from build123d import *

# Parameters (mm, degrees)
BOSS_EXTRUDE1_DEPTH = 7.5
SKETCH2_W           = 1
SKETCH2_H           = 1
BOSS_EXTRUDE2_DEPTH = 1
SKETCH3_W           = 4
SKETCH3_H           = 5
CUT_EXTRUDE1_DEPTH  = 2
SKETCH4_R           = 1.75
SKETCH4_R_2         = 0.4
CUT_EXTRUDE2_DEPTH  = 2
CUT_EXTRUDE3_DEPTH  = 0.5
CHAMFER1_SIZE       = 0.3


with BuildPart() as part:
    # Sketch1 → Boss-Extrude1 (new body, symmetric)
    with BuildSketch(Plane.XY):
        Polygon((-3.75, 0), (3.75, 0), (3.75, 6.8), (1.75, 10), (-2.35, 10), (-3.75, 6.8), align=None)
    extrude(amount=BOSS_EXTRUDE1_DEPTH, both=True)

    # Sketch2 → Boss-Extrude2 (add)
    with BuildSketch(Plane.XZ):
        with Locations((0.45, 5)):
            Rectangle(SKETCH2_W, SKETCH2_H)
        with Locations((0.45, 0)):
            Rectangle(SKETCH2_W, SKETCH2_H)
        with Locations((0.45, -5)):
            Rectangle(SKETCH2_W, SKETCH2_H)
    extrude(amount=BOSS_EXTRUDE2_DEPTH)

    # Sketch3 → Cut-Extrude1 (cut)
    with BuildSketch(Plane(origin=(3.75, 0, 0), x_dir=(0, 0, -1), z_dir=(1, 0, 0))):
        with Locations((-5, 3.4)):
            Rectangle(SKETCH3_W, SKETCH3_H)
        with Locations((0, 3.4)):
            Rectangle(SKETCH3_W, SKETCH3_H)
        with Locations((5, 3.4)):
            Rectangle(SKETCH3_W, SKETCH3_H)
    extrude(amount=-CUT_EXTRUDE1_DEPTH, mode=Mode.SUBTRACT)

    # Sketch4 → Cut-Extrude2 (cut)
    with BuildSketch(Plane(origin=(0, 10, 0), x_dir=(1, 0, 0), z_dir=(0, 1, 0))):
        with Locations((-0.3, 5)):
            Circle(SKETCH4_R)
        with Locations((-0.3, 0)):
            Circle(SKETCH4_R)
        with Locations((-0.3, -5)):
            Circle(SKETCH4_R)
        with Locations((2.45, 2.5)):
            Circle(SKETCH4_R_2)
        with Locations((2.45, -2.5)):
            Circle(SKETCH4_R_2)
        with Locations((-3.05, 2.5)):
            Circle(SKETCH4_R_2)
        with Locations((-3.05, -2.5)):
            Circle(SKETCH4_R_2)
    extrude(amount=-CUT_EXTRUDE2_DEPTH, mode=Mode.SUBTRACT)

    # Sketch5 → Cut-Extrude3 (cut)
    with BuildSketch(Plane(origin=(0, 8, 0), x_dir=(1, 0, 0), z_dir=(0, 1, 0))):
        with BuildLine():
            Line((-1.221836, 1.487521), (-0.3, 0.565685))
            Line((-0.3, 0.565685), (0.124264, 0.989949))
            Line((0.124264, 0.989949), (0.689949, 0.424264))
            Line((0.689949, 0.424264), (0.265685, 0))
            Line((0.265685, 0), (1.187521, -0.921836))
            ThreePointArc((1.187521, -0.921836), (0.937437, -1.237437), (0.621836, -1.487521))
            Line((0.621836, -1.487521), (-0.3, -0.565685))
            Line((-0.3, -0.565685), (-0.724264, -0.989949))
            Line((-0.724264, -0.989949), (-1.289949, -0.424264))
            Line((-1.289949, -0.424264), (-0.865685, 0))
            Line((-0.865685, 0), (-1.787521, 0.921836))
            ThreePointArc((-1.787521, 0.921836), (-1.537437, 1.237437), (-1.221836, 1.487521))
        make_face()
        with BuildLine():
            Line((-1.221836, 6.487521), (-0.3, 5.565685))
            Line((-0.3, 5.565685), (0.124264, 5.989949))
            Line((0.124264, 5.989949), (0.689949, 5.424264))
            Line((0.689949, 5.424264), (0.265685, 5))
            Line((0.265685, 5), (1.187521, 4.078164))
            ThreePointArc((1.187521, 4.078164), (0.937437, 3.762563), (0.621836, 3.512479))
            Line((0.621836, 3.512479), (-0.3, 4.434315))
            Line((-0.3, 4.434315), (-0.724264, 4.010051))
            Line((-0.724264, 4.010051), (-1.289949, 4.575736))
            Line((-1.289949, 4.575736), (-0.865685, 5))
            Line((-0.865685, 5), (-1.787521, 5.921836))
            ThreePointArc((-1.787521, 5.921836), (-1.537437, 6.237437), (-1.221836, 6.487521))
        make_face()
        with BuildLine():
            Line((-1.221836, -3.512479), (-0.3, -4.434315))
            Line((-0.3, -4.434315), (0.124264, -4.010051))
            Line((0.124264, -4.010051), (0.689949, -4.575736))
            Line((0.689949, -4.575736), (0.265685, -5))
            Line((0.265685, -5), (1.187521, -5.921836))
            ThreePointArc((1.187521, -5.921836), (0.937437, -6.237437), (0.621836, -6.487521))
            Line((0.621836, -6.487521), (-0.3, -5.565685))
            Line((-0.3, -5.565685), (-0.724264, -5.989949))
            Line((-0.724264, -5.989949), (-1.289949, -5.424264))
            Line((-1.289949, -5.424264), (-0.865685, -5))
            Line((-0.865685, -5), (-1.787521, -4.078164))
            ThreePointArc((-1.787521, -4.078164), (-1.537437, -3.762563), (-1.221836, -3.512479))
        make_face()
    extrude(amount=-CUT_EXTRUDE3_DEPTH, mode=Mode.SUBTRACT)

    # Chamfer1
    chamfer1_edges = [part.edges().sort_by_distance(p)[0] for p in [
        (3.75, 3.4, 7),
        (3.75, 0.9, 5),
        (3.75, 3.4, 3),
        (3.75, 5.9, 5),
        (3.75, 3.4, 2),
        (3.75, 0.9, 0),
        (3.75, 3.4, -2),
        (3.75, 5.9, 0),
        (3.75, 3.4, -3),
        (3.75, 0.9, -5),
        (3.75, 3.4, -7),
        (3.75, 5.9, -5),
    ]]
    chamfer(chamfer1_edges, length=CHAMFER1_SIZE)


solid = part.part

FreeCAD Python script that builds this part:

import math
import FreeCAD as App
import Part
import Sketcher
from FreeCAD import Vector
Q = App.Units.Quantity


def edges_at(feature, points):
    """Names of the edges that pass closest to the given points."""
    edges = feature.Shape.Edges
    near = lambda p: min(range(len(edges)), key=lambda i: edges[i].distToShape(Part.Vertex(*p))[0])
    return sorted({f"Edge{near(p) + 1}" for p in points})

doc = App.newDocument("Part")
body = doc.addObject("PartDesign::Body", "Body")

# Sketch on XY plane
sketch1 = body.newObject("Sketcher::SketchObject", "Sketch")
sketch1.AttachmentSupport = (doc.getObject("XY_Plane"), [""])
sketch1.MapMode = "FlatFace"
sketch1.addGeometry(Part.LineSegment(Vector(-3.75, 0, 0), Vector(3.75, 0, 0)), False)
sketch1.addGeometry(Part.LineSegment(Vector(3.75, 0, 0), Vector(3.75, 6.8, 0)), False)
sketch1.addGeometry(Part.LineSegment(Vector(3.75, 6.8, 0), Vector(1.75, 10, 0)), False)
sketch1.addGeometry(Part.LineSegment(Vector(1.75, 10, 0), Vector(-2.35, 10, 0)), False)
sketch1.addGeometry(Part.LineSegment(Vector(-2.35, 10, 0), Vector(-3.75, 6.8, 0)), False)
sketch1.addGeometry(Part.LineSegment(Vector(-3.75, 6.8, 0), Vector(-3.75, 0, 0)), False)
sketch1.addConstraint(Sketcher.Constraint("Coincident", 0, 2, 1, 1))
sketch1.addConstraint(Sketcher.Constraint("Coincident", 1, 2, 2, 1))
sketch1.addConstraint(Sketcher.Constraint("Coincident", 2, 2, 3, 1))
sketch1.addConstraint(Sketcher.Constraint("Coincident", 3, 2, 4, 1))
sketch1.addConstraint(Sketcher.Constraint("Coincident", 4, 2, 5, 1))
sketch1.addConstraint(Sketcher.Constraint("Coincident", 5, 2, 0, 1))
sketch1.addConstraint(Sketcher.Constraint("Horizontal", 0))
sketch1.addConstraint(Sketcher.Constraint("Vertical", 1))
sketch1.addConstraint(Sketcher.Constraint("Horizontal", 3))
sketch1.addConstraint(Sketcher.Constraint("Vertical", 5))
sketch1.addConstraint(Sketcher.Constraint("Symmetric", 0, 2, 5, 2, -1, 1))
sketch1.addConstraint(Sketcher.Constraint("Horizontal", 1, 2, 4, 2))
sketch1.addConstraint(Sketcher.Constraint("DistanceX", 0, 1, 0, 2, Q("7.5 mm")))
sketch1.addConstraint(Sketcher.Constraint("DistanceX", 3, 2, 3, 1, Q("4.1 mm")))
sketch1.addConstraint(Sketcher.Constraint("DistanceY", 1, 1, 1, 2, Q("6.8 mm")))
sketch1.addConstraint(Sketcher.Constraint("DistanceY", -1, 1, 2, 2, Q("10 mm")))
sketch1.addConstraint(Sketcher.Constraint("DistanceX", 2, 2, 1, 2, Q("2 mm")))
pad1 = body.newObject("PartDesign::Pad", "Pad")
pad1.Profile = sketch1
pad1.Length = 15
pad1.Midplane = True

# Sketch on XZ plane
sketch2 = body.newObject("Sketcher::SketchObject", "Sketch001")
sketch2.AttachmentSupport = (doc.getObject("XZ_Plane"), [""])
sketch2.MapMode = "FlatFace"
sketch2.addGeometry(Part.LineSegment(Vector(-0.05, 5.5, 0), Vector(-0.05, 4.5, 0)), False)
sketch2.addGeometry(Part.LineSegment(Vector(-0.05, 4.5, 0), Vector(0.95, 4.5, 0)), False)
sketch2.addGeometry(Part.LineSegment(Vector(0.95, 4.5, 0), Vector(0.95, 5.5, 0)), False)
sketch2.addGeometry(Part.LineSegment(Vector(0.95, 5.5, 0), Vector(-0.05, 5.5, 0)), False)
sketch2.addGeometry(Part.LineSegment(Vector(-0.05, 0.5, 0), Vector(-0.05, -0.5, 0)), False)
sketch2.addGeometry(Part.LineSegment(Vector(-0.05, -0.5, 0), Vector(0.95, -0.5, 0)), False)
sketch2.addGeometry(Part.LineSegment(Vector(0.95, -0.5, 0), Vector(0.95, 0.5, 0)), False)
sketch2.addGeometry(Part.LineSegment(Vector(0.95, 0.5, 0), Vector(-0.05, 0.5, 0)), False)
sketch2.addGeometry(Part.LineSegment(Vector(-0.05, -4.5, 0), Vector(-0.05, -5.5, 0)), False)
sketch2.addGeometry(Part.LineSegment(Vector(-0.05, -5.5, 0), Vector(0.95, -5.5, 0)), False)
sketch2.addGeometry(Part.LineSegment(Vector(0.95, -5.5, 0), Vector(0.95, -4.5, 0)), False)
sketch2.addGeometry(Part.LineSegment(Vector(0.95, -4.5, 0), Vector(-0.05, -4.5, 0)), False)
sketch2.addConstraint(Sketcher.Constraint("Coincident", 0, 2, 1, 1))
sketch2.addConstraint(Sketcher.Constraint("Coincident", 1, 2, 2, 1))
sketch2.addConstraint(Sketcher.Constraint("Coincident", 2, 2, 3, 1))
sketch2.addConstraint(Sketcher.Constraint("Coincident", 3, 2, 0, 1))
sketch2.addConstraint(Sketcher.Constraint("Coincident", 4, 2, 5, 1))
sketch2.addConstraint(Sketcher.Constraint("Coincident", 5, 2, 6, 1))
sketch2.addConstraint(Sketcher.Constraint("Coincident", 6, 2, 7, 1))
sketch2.addConstraint(Sketcher.Constraint("Coincident", 7, 2, 4, 1))
sketch2.addConstraint(Sketcher.Constraint("Coincident", 8, 2, 9, 1))
sketch2.addConstraint(Sketcher.Constraint("Coincident", 9, 2, 10, 1))
sketch2.addConstraint(Sketcher.Constraint("Coincident", 10, 2, 11, 1))
sketch2.addConstraint(Sketcher.Constraint("Coincident", 11, 2, 8, 1))
sketch2.addConstraint(Sketcher.Constraint("Vertical", 0))
sketch2.addConstraint(Sketcher.Constraint("Horizontal", 1))
sketch2.addConstraint(Sketcher.Constraint("Vertical", 2))
sketch2.addConstraint(Sketcher.Constraint("Horizontal", 3))
sketch2.addConstraint(Sketcher.Constraint("Vertical", 4))
sketch2.addConstraint(Sketcher.Constraint("Horizontal", 5))
sketch2.addConstraint(Sketcher.Constraint("Vertical", 6))
sketch2.addConstraint(Sketcher.Constraint("Horizontal", 7))
sketch2.addConstraint(Sketcher.Constraint("Vertical", 8))
sketch2.addConstraint(Sketcher.Constraint("Horizontal", 9))
sketch2.addConstraint(Sketcher.Constraint("Vertical", 10))
sketch2.addConstraint(Sketcher.Constraint("Horizontal", 11))
sketch2.addConstraint(Sketcher.Constraint("Symmetric", 3, 2, 8, 2, -1))
sketch2.addConstraint(Sketcher.Constraint("Symmetric", 1, 2, 10, 2, -1))
sketch2.addConstraint(Sketcher.Constraint("Vertical", 3, 2, 4, 2))
sketch2.addConstraint(Sketcher.Constraint("Vertical", 2, 2, 5, 2))
sketch2.addConstraint(Sketcher.Constraint("Equal", 11, 0))
sketch2.addConstraint(Sketcher.Constraint("Equal", 2, 4))
sketch2.addConstraint(Sketcher.Constraint("DistanceX", 1, 1, 1, 2, Q("1 mm")))
sketch2.addConstraint(Sketcher.Constraint("DistanceY", 4, 2, 0, 2, Q("5 mm")))
sketch2.addConstraint(Sketcher.Constraint("DistanceY", 8, 2, 4, 2, Q("5 mm")))
sketch2.addConstraint(Sketcher.Constraint("DistanceX", 0, 2, -1, 1, Q("0.05 mm")))
pad2 = body.newObject("PartDesign::Pad", "Pad001")
pad2.Profile = sketch2
pad2.Length = 1

# Sketch on YZ plane
sketch3 = body.newObject("Sketcher::SketchObject", "Sketch002")
sketch3.AttachmentSupport = (doc.getObject("YZ_Plane"), [""])
sketch3.MapMode = "FlatFace"
sketch3.AttachmentOffset = App.Placement(Vector(0, 0, 3.75), App.Rotation())
sketch3.addGeometry(Part.LineSegment(Vector(5.9, 7, 0), Vector(0.9, 7, 0)), False)
sketch3.addGeometry(Part.LineSegment(Vector(0.9, 7, 0), Vector(0.9, 3, 0)), False)
sketch3.addGeometry(Part.LineSegment(Vector(0.9, 3, 0), Vector(5.9, 3, 0)), False)
sketch3.addGeometry(Part.LineSegment(Vector(5.9, 3, 0), Vector(5.9, 7, 0)), False)
sketch3.addGeometry(Part.LineSegment(Vector(5.9, 2, 0), Vector(0.9, 2, 0)), False)
sketch3.addGeometry(Part.LineSegment(Vector(0.9, 2, 0), Vector(0.9, -2, 0)), False)
sketch3.addGeometry(Part.LineSegment(Vector(0.9, -2, 0), Vector(5.9, -2, 0)), False)
sketch3.addGeometry(Part.LineSegment(Vector(5.9, -2, 0), Vector(5.9, 2, 0)), False)
sketch3.addGeometry(Part.LineSegment(Vector(5.9, -3, 0), Vector(0.9, -3, 0)), False)
sketch3.addGeometry(Part.LineSegment(Vector(0.9, -3, 0), Vector(0.9, -7, 0)), False)
sketch3.addGeometry(Part.LineSegment(Vector(0.9, -7, 0), Vector(5.9, -7, 0)), False)
sketch3.addGeometry(Part.LineSegment(Vector(5.9, -7, 0), Vector(5.9, -3, 0)), False)
sketch3.addConstraint(Sketcher.Constraint("Coincident", 0, 2, 1, 1))
sketch3.addConstraint(Sketcher.Constraint("Coincident", 1, 2, 2, 1))
sketch3.addConstraint(Sketcher.Constraint("Coincident", 2, 2, 3, 1))
sketch3.addConstraint(Sketcher.Constraint("Coincident", 3, 2, 0, 1))
sketch3.addConstraint(Sketcher.Constraint("Coincident", 4, 2, 5, 1))
sketch3.addConstraint(Sketcher.Constraint("Coincident", 5, 2, 6, 1))
sketch3.addConstraint(Sketcher.Constraint("Coincident", 6, 2, 7, 1))
sketch3.addConstraint(Sketcher.Constraint("Coincident", 7, 2, 4, 1))
sketch3.addConstraint(Sketcher.Constraint("Coincident", 8, 2, 9, 1))
sketch3.addConstraint(Sketcher.Constraint("Coincident", 9, 2, 10, 1))
sketch3.addConstraint(Sketcher.Constraint("Coincident", 10, 2, 11, 1))
sketch3.addConstraint(Sketcher.Constraint("Coincident", 11, 2, 8, 1))
sketch3.addConstraint(Sketcher.Constraint("Horizontal", 0))
sketch3.addConstraint(Sketcher.Constraint("Vertical", 1))
sketch3.addConstraint(Sketcher.Constraint("Horizontal", 2))
sketch3.addConstraint(Sketcher.Constraint("Vertical", 3))
sketch3.addConstraint(Sketcher.Constraint("Horizontal", 4))
sketch3.addConstraint(Sketcher.Constraint("Vertical", 5))
sketch3.addConstraint(Sketcher.Constraint("Horizontal", 6))
sketch3.addConstraint(Sketcher.Constraint("Vertical", 7))
sketch3.addConstraint(Sketcher.Constraint("Horizontal", 8))
sketch3.addConstraint(Sketcher.Constraint("Vertical", 9))
sketch3.addConstraint(Sketcher.Constraint("Horizontal", 10))
sketch3.addConstraint(Sketcher.Constraint("Vertical", 11))
sketch3.addConstraint(Sketcher.Constraint("Symmetric", 1, 2, 8, 2, -1))
sketch3.addConstraint(Sketcher.Constraint("Symmetric", 3, 2, 10, 2, -1))
sketch3.addConstraint(Sketcher.Constraint("Vertical", 1, 2, 4, 2))
sketch3.addConstraint(Sketcher.Constraint("Vertical", 3, 2, 6, 2))
sketch3.addConstraint(Sketcher.Constraint("Equal", 3, 5))
sketch3.addConstraint(Sketcher.Constraint("DistanceX", 0, 2, 0, 1, Q("5 mm")))
sketch3.addConstraint(Sketcher.Constraint("DistanceY", 1, 2, 1, 1, Q("4 mm")))
sketch3.addConstraint(Sketcher.Constraint("DistanceY", -1, 1, 0, 2, Q("7 mm")))
sketch3.addConstraint(Sketcher.Constraint("DistanceY", -1, 1, 4, 2, Q("2 mm")))
sketch3.addConstraint(Sketcher.Constraint("DistanceX", -1, 1, 0, 2, Q("0.9 mm")))
pocket1 = body.newObject("PartDesign::Pocket", "Pocket")
pocket1.Profile = sketch3
pocket1.Length = 2

# Sketch on XZ plane
sketch4 = body.newObject("Sketcher::SketchObject", "Sketch003")
sketch4.AttachmentSupport = (doc.getObject("XZ_Plane"), [""])
sketch4.MapMode = "FlatFace"
sketch4.AttachmentOffset = App.Placement(Vector(0, 0, -10), App.Rotation())
sketch4.addGeometry(Part.Circle(Vector(-0.3, -5, 0), Vector(0, 0, 1), 1.75), False)
sketch4.addGeometry(Part.Circle(Vector(-0.3, 0, 0), Vector(0, 0, 1), 1.75), False)
sketch4.addGeometry(Part.Circle(Vector(-0.3, 5, 0), Vector(0, 0, 1), 1.75), False)
sketch4.addGeometry(Part.Circle(Vector(2.45, -2.5, 0), Vector(0, 0, 1), 0.4), False)
sketch4.addGeometry(Part.Circle(Vector(2.45, 2.5, 0), Vector(0, 0, 1), 0.4), False)
sketch4.addGeometry(Part.Circle(Vector(-3.05, -2.5, 0), Vector(0, 0, 1), 0.4), False)
sketch4.addGeometry(Part.Circle(Vector(-3.05, 2.5, 0), Vector(0, 0, 1), 0.4), False)
sketch4.addConstraint(Sketcher.Constraint("Equal", 0, 1))
sketch4.addConstraint(Sketcher.Constraint("Equal", 1, 2))
sketch4.addConstraint(Sketcher.Constraint("Equal", 3, 4))
sketch4.addConstraint(Sketcher.Constraint("Equal", 4, 5))
sketch4.addConstraint(Sketcher.Constraint("Equal", 5, 6))
sketch4.addConstraint(Sketcher.Constraint("Symmetric", 0, 3, 2, 3, -1))
sketch4.addConstraint(Sketcher.Constraint("Symmetric", 3, 3, 4, 3, -1))
sketch4.addConstraint(Sketcher.Constraint("Symmetric", 5, 3, 6, 3, -1))
sketch4.addConstraint(Sketcher.Constraint("PointOnObject", 1, 3, -1))
sketch4.addConstraint(Sketcher.Constraint("Horizontal", 3, 3, 5, 3))
sketch4.addConstraint(Sketcher.Constraint("Vertical", 0, 3, 1, 3))
sketch4.addConstraint(Sketcher.Constraint("Diameter", 0, Q("3.5 mm")))
sketch4.addConstraint(Sketcher.Constraint("Diameter", 3, Q("0.8 mm")))
sketch4.addConstraint(Sketcher.Constraint("DistanceY", 0, 3, -1, 1, Q("5 mm")))
sketch4.addConstraint(Sketcher.Constraint("DistanceY", 3, 3, 4, 3, Q("5 mm")))
sketch4.addConstraint(Sketcher.Constraint("DistanceX", 0, 3, -1, 1, Q("0.3 mm")))
sketch4.addConstraint(Sketcher.Constraint("DistanceX", 5, 3, 3, 3, Q("5.5 mm")))
sketch4.addConstraint(Sketcher.Constraint("DistanceX", -1, 1, 3, 3, Q("2.45 mm")))
pocket2 = body.newObject("PartDesign::Pocket", "Pocket001")
pocket2.Profile = sketch4
pocket2.Length = 2
pocket2.Reversed = True

# Sketch on XZ plane
sketch5 = body.newObject("Sketcher::SketchObject", "Sketch004")
sketch5.AttachmentSupport = (doc.getObject("XZ_Plane"), [""])
sketch5.MapMode = "FlatFace"
sketch5.AttachmentOffset = App.Placement(Vector(0, 0, -8), App.Rotation())
sketch5.addGeometry(Part.LineSegment(Vector(-0.3, -0.565685, 0), Vector(-1.221836, -1.487521, 0)), False)
sketch5.addGeometry(Part.ArcOfCircle(Part.Circle(Vector(-0.300002, -0.000002, 0), Vector(0, 0, 1), 1.749997), math.radians(-148.212995), math.radians(-121.787005)), False)
sketch5.addGeometry(Part.LineSegment(Vector(-1.787521, -0.921836, 0), Vector(-0.865685, 0, 0)), False)
sketch5.addGeometry(Part.LineSegment(Vector(-0.865685, 0, 0), Vector(-1.289949, 0.424264, 0)), False)
sketch5.addGeometry(Part.LineSegment(Vector(-1.289949, 0.424264, 0), Vector(-0.724264, 0.989949, 0)), False)
sketch5.addGeometry(Part.LineSegment(Vector(-0.724264, 0.989949, 0), Vector(-0.3, 0.565685, 0)), False)
sketch5.addGeometry(Part.LineSegment(Vector(-0.3, 0.565685, 0), Vector(0.621836, 1.487521, 0)), False)
sketch5.addGeometry(Part.ArcOfCircle(Part.Circle(Vector(-0.299998, 0.000002, 0), Vector(0, 0, 1), 1.749997), math.radians(31.787005), math.radians(58.212995)), False)
sketch5.addGeometry(Part.LineSegment(Vector(1.187521, 0.921836, 0), Vector(0.265685, 0, 0)), False)
sketch5.addGeometry(Part.LineSegment(Vector(0.265685, 0, 0), Vector(0.689949, -0.424264, 0)), False)
sketch5.addGeometry(Part.LineSegment(Vector(0.689949, -0.424264, 0), Vector(0.124264, -0.989949, 0)), False)
sketch5.addGeometry(Part.LineSegment(Vector(0.124264, -0.989949, 0), Vector(-0.3, -0.565685, 0)), False)
sketch5.addGeometry(Part.LineSegment(Vector(-0.3, -5.565685, 0), Vector(-1.221836, -6.487521, 0)), False)
sketch5.addGeometry(Part.ArcOfCircle(Part.Circle(Vector(-0.300002, -5.000002, 0), Vector(0, 0, 1), 1.749997), math.radians(-148.212995), math.radians(-121.787005)), False)
sketch5.addGeometry(Part.LineSegment(Vector(-1.787521, -5.921836, 0), Vector(-0.865685, -5, 0)), False)
sketch5.addGeometry(Part.LineSegment(Vector(-0.865685, -5, 0), Vector(-1.289949, -4.575736, 0)), False)
sketch5.addGeometry(Part.LineSegment(Vector(-1.289949, -4.575736, 0), Vector(-0.724264, -4.010051, 0)), False)
sketch5.addGeometry(Part.LineSegment(Vector(-0.724264, -4.010051, 0), Vector(-0.3, -4.434315, 0)), False)
sketch5.addGeometry(Part.LineSegment(Vector(-0.3, -4.434315, 0), Vector(0.621836, -3.512479, 0)), False)
sketch5.addGeometry(Part.ArcOfCircle(Part.Circle(Vector(-0.299998, -4.999998, 0), Vector(0, 0, 1), 1.749997), math.radians(31.787005), math.radians(58.212995)), False)
sketch5.addGeometry(Part.LineSegment(Vector(1.187521, -4.078164, 0), Vector(0.265685, -5, 0)), False)
sketch5.addGeometry(Part.LineSegment(Vector(0.265685, -5, 0), Vector(0.689949, -5.424264, 0)), False)
sketch5.addGeometry(Part.LineSegment(Vector(0.689949, -5.424264, 0), Vector(0.124264, -5.989949, 0)), False)
sketch5.addGeometry(Part.LineSegment(Vector(0.124264, -5.989949, 0), Vector(-0.3, -5.565685, 0)), False)
sketch5.addGeometry(Part.LineSegment(Vector(-0.3, 4.434315, 0), Vector(-1.221836, 3.512479, 0)), False)
sketch5.addGeometry(Part.ArcOfCircle(Part.Circle(Vector(-0.300002, 4.999998, 0), Vector(0, 0, 1), 1.749997), math.radians(-148.212995), math.radians(-121.787005)), False)
sketch5.addGeometry(Part.LineSegment(Vector(-1.787521, 4.078164, 0), Vector(-0.865685, 5, 0)), False)
sketch5.addGeometry(Part.LineSegment(Vector(-0.865685, 5, 0), Vector(-1.289949, 5.424264, 0)), False)
sketch5.addGeometry(Part.LineSegment(Vector(-1.289949, 5.424264, 0), Vector(-0.724264, 5.989949, 0)), False)
sketch5.addGeometry(Part.LineSegment(Vector(-0.724264, 5.989949, 0), Vector(-0.3, 5.565685, 0)), False)
sketch5.addGeometry(Part.LineSegment(Vector(-0.3, 5.565685, 0), Vector(0.621836, 6.487521, 0)), False)
sketch5.addGeometry(Part.ArcOfCircle(Part.Circle(Vector(-0.299998, 5.000002, 0), Vector(0, 0, 1), 1.749997), math.radians(31.787005), math.radians(58.212995)), False)
sketch5.addGeometry(Part.LineSegment(Vector(1.187521, 5.921836, 0), Vector(0.265685, 5, 0)), False)
sketch5.addGeometry(Part.LineSegment(Vector(0.265685, 5, 0), Vector(0.689949, 4.575736, 0)), False)
sketch5.addGeometry(Part.LineSegment(Vector(0.689949, 4.575736, 0), Vector(0.124264, 4.010051, 0)), False)
sketch5.addGeometry(Part.LineSegment(Vector(0.124264, 4.010051, 0), Vector(-0.3, 4.434315, 0)), False)
sketch5.addConstraint(Sketcher.Constraint("Coincident", 0, 2, 1, 2))
sketch5.addConstraint(Sketcher.Constraint("Coincident", 1, 1, 2, 1))
sketch5.addConstraint(Sketcher.Constraint("Coincident", 2, 2, 3, 1))
sketch5.addConstraint(Sketcher.Constraint("Coincident", 3, 2, 4, 1))
sketch5.addConstraint(Sketcher.Constraint("Coincident", 4, 2, 5, 1))
sketch5.addConstraint(Sketcher.Constraint("Coincident", 5, 2, 6, 1))
sketch5.addConstraint(Sketcher.Constraint("Coincident", 6, 2, 7, 2))
sketch5.addConstraint(Sketcher.Constraint("Coincident", 7, 1, 8, 1))
sketch5.addConstraint(Sketcher.Constraint("Coincident", 8, 2, 9, 1))
sketch5.addConstraint(Sketcher.Constraint("Coincident", 9, 2, 10, 1))
sketch5.addConstraint(Sketcher.Constraint("Coincident", 10, 2, 11, 1))
sketch5.addConstraint(Sketcher.Constraint("Coincident", 11, 2, 0, 1))
sketch5.addConstraint(Sketcher.Constraint("Coincident", 12, 2, 13, 2))
sketch5.addConstraint(Sketcher.Constraint("Coincident", 13, 1, 14, 1))
sketch5.addConstraint(Sketcher.Constraint("Coincident", 14, 2, 15, 1))
sketch5.addConstraint(Sketcher.Constraint("Coincident", 15, 2, 16, 1))
sketch5.addConstraint(Sketcher.Constraint("Coincident", 16, 2, 17, 1))
sketch5.addConstraint(Sketcher.Constraint("Coincident", 17, 2, 18, 1))
sketch5.addConstraint(Sketcher.Constraint("Coincident", 18, 2, 19, 2))
sketch5.addConstraint(Sketcher.Constraint("Coincident", 19, 1, 20, 1))
sketch5.addConstraint(Sketcher.Constraint("Coincident", 20, 2, 21, 1))
sketch5.addConstraint(Sketcher.Constraint("Coincident", 21, 2, 22, 1))
sketch5.addConstraint(Sketcher.Constraint("Coincident", 22, 2, 23, 1))
sketch5.addConstraint(Sketcher.Constraint("Coincident", 23, 2, 12, 1))
sketch5.addConstraint(Sketcher.Constraint("Coincident", 24, 2, 25, 2))
sketch5.addConstraint(Sketcher.Constraint("Coincident", 25, 1, 26, 1))
sketch5.addConstraint(Sketcher.Constraint("Coincident", 26, 2, 27, 1))
sketch5.addConstraint(Sketcher.Constraint("Coincident", 27, 2, 28, 1))
sketch5.addConstraint(Sketcher.Constraint("Coincident", 28, 2, 29, 1))
sketch5.addConstraint(Sketcher.Constraint("Coincident", 29, 2, 30, 1))
sketch5.addConstraint(Sketcher.Constraint("Coincident", 30, 2, 31, 2))
sketch5.addConstraint(Sketcher.Constraint("Coincident", 31, 1, 32, 1))
sketch5.addConstraint(Sketcher.Constraint("Coincident", 32, 2, 33, 1))
sketch5.addConstraint(Sketcher.Constraint("Coincident", 33, 2, 34, 1))
sketch5.addConstraint(Sketcher.Constraint("Coincident", 34, 2, 35, 1))
sketch5.addConstraint(Sketcher.Constraint("Coincident", 35, 2, 24, 1))
sketch5.addConstraint(Sketcher.Constraint("Coincident", 7, 3, 1, 3))
sketch5.addConstraint(Sketcher.Constraint("Coincident", 19, 3, 13, 3))
sketch5.addConstraint(Sketcher.Constraint("Coincident", 31, 3, 25, 3))
sketch5.addConstraint(Sketcher.Constraint("Equal", 1, 7))
sketch5.addConstraint(Sketcher.Constraint("Equal", 7, 13))
sketch5.addConstraint(Sketcher.Constraint("Equal", 13, 19))
sketch5.addConstraint(Sketcher.Constraint("Equal", 19, 25))
sketch5.addConstraint(Sketcher.Constraint("Equal", 25, 31))
sketch5.addConstraint(Sketcher.Constraint("Symmetric", 13, 3, 25, 3, -1))
sketch5.addConstraint(Sketcher.Constraint("Symmetric", 5, 2, 11, 2, -1))
sketch5.addConstraint(Sketcher.Constraint("Symmetric", 14, 2, 26, 2, -1))
sketch5.addConstraint(Sketcher.Constraint("Symmetric", 23, 2, 29, 2, -1))
sketch5.addConstraint(Sketcher.Constraint("Symmetric", 20, 2, 32, 2, -1))
sketch5.addConstraint(Sketcher.Constraint("Symmetric", 17, 2, 35, 2, -1))
sketch5.addConstraint(Sketcher.Constraint("PointOnObject", 2, 2, -1))
sketch5.addConstraint(Sketcher.Constraint("PointOnObject", 8, 2, -1))
sketch5.addConstraint(Sketcher.Constraint("Parallel", 0, 2))
sketch5.addConstraint(Sketcher.Constraint("Perpendicular", 2, 3))
sketch5.addConstraint(Sketcher.Constraint("Perpendicular", 3, 4))
sketch5.addConstraint(Sketcher.Constraint("Perpendicular", 4, 5))
sketch5.addConstraint(Sketcher.Constraint("Perpendicular", 5, 6))
sketch5.addConstraint(Sketcher.Constraint("Parallel", 6, 8))
sketch5.addConstraint(Sketcher.Constraint("Perpendicular", 8, 9))
sketch5.addConstraint(Sketcher.Constraint("Perpendicular", 9, 10))
sketch5.addConstraint(Sketcher.Constraint("Perpendicular", 10, 11))
sketch5.addConstraint(Sketcher.Constraint("Perpendicular", 11, 12))
sketch5.addConstraint(Sketcher.Constraint("Parallel", 12, 14))
sketch5.addConstraint(Sketcher.Constraint("Perpendicular", 14, 15))
sketch5.addConstraint(Sketcher.Constraint("Perpendicular", 15, 16))
sketch5.addConstraint(Sketcher.Constraint("Perpendicular", 16, 17))
sketch5.addConstraint(Sketcher.Constraint("Perpendicular", 17, 18))
sketch5.addConstraint(Sketcher.Constraint("Parallel", 18, 20))
sketch5.addConstraint(Sketcher.Constraint("Perpendicular", 20, 21))
sketch5.addConstraint(Sketcher.Constraint("Perpendicular", 21, 22))
sketch5.addConstraint(Sketcher.Constraint("Perpendicular", 22, 23))
sketch5.addConstraint(Sketcher.Constraint("Perpendicular", 23, 24))
sketch5.addConstraint(Sketcher.Constraint("Parallel", 24, 26))
sketch5.addConstraint(Sketcher.Constraint("Perpendicular", 26, 27))
sketch5.addConstraint(Sketcher.Constraint("Perpendicular", 27, 28))
sketch5.addConstraint(Sketcher.Constraint("Perpendicular", 28, 29))
sketch5.addConstraint(Sketcher.Constraint("Perpendicular", 29, 30))
sketch5.addConstraint(Sketcher.Constraint("Parallel", 30, 32))
sketch5.addConstraint(Sketcher.Constraint("Perpendicular", 32, 33))
sketch5.addConstraint(Sketcher.Constraint("Perpendicular", 33, 34))
sketch5.addConstraint(Sketcher.Constraint("Perpendicular", 34, 35))
sketch5.addConstraint(Sketcher.Constraint("Horizontal", 14, 2, 20, 2))
sketch5.addConstraint(Sketcher.Constraint("Vertical", 1, 3, 13, 3))
sketch5.addConstraint(Sketcher.Constraint("Vertical", 0, 2, 12, 2))
sketch5.addConstraint(Sketcher.Constraint("Vertical", 1, 1, 13, 1))
sketch5.addConstraint(Sketcher.Constraint("Vertical", 2, 2, 14, 2))
sketch5.addConstraint(Sketcher.Constraint("Vertical", 3, 2, 15, 2))
sketch5.addConstraint(Sketcher.Constraint("Vertical", 4, 2, 16, 2))
sketch5.addConstraint(Sketcher.Constraint("Vertical", 11, 2, 17, 2))
sketch5.addConstraint(Sketcher.Constraint("Vertical", 7, 1, 19, 1))
sketch5.addConstraint(Sketcher.Constraint("Vertical", 9, 2, 21, 2))
sketch5.addConstraint(Sketcher.Constraint("Vertical", 10, 2, 22, 2))
sketch5.addConstraint(Sketcher.Constraint("Vertical", 12, 2, 24, 2))
sketch5.addConstraint(Sketcher.Constraint("Vertical", 15, 2, 27, 2))
sketch5.addConstraint(Sketcher.Constraint("Vertical", 21, 2, 33, 2))
sketch5.addConstraint(Sketcher.Constraint("Equal", 0, 2))
sketch5.addConstraint(Sketcher.Constraint("Equal", 3, 5))
sketch5.addConstraint(Sketcher.Constraint("Equal", 2, 6))
sketch5.addConstraint(Sketcher.Constraint("Equal", 6, 8))
sketch5.addConstraint(Sketcher.Constraint("Equal", 5, 9))
sketch5.addConstraint(Sketcher.Constraint("DistanceY", 14, 2, -1, 1, Q("5 mm")))
sketch5.addConstraint(Sketcher.Constraint("Distance", 3, Q("0.6 mm")))
sketch5.addConstraint(Sketcher.Constraint("Distance", 4, Q("0.799999 mm")))
sketch5.addConstraint(Sketcher.Constraint("DistanceX", 5, 2, -1, 1, Q("0.3 mm")))
sketch5.addConstraint(Sketcher.Constraint("Radius", 1, Q("1.749997 mm")))
pocket3 = body.newObject("PartDesign::Pocket", "Pocket002")
pocket3.Profile = sketch5
pocket3.Length = 0.5
pocket3.Reversed = True
doc.recompute()

chamfer = body.newObject("PartDesign::Chamfer", "Chamfer")
chamfer.Base = (pocket3, edges_at(pocket3, [
    (3.75, 3.4, 7),
    (3.75, 0.9, 5),
    (3.75, 3.4, 3),
    (3.75, 5.9, 5),
    (3.75, 3.4, 2),
    (3.75, 0.9, 0),
    (3.75, 3.4, -2),
    (3.75, 5.9, 0),
    (3.75, 3.4, -3),
    (3.75, 0.9, -5),
    (3.75, 3.4, -7),
    (3.75, 5.9, -5),
]))
chamfer.Size = 0.3

doc.recompute()
